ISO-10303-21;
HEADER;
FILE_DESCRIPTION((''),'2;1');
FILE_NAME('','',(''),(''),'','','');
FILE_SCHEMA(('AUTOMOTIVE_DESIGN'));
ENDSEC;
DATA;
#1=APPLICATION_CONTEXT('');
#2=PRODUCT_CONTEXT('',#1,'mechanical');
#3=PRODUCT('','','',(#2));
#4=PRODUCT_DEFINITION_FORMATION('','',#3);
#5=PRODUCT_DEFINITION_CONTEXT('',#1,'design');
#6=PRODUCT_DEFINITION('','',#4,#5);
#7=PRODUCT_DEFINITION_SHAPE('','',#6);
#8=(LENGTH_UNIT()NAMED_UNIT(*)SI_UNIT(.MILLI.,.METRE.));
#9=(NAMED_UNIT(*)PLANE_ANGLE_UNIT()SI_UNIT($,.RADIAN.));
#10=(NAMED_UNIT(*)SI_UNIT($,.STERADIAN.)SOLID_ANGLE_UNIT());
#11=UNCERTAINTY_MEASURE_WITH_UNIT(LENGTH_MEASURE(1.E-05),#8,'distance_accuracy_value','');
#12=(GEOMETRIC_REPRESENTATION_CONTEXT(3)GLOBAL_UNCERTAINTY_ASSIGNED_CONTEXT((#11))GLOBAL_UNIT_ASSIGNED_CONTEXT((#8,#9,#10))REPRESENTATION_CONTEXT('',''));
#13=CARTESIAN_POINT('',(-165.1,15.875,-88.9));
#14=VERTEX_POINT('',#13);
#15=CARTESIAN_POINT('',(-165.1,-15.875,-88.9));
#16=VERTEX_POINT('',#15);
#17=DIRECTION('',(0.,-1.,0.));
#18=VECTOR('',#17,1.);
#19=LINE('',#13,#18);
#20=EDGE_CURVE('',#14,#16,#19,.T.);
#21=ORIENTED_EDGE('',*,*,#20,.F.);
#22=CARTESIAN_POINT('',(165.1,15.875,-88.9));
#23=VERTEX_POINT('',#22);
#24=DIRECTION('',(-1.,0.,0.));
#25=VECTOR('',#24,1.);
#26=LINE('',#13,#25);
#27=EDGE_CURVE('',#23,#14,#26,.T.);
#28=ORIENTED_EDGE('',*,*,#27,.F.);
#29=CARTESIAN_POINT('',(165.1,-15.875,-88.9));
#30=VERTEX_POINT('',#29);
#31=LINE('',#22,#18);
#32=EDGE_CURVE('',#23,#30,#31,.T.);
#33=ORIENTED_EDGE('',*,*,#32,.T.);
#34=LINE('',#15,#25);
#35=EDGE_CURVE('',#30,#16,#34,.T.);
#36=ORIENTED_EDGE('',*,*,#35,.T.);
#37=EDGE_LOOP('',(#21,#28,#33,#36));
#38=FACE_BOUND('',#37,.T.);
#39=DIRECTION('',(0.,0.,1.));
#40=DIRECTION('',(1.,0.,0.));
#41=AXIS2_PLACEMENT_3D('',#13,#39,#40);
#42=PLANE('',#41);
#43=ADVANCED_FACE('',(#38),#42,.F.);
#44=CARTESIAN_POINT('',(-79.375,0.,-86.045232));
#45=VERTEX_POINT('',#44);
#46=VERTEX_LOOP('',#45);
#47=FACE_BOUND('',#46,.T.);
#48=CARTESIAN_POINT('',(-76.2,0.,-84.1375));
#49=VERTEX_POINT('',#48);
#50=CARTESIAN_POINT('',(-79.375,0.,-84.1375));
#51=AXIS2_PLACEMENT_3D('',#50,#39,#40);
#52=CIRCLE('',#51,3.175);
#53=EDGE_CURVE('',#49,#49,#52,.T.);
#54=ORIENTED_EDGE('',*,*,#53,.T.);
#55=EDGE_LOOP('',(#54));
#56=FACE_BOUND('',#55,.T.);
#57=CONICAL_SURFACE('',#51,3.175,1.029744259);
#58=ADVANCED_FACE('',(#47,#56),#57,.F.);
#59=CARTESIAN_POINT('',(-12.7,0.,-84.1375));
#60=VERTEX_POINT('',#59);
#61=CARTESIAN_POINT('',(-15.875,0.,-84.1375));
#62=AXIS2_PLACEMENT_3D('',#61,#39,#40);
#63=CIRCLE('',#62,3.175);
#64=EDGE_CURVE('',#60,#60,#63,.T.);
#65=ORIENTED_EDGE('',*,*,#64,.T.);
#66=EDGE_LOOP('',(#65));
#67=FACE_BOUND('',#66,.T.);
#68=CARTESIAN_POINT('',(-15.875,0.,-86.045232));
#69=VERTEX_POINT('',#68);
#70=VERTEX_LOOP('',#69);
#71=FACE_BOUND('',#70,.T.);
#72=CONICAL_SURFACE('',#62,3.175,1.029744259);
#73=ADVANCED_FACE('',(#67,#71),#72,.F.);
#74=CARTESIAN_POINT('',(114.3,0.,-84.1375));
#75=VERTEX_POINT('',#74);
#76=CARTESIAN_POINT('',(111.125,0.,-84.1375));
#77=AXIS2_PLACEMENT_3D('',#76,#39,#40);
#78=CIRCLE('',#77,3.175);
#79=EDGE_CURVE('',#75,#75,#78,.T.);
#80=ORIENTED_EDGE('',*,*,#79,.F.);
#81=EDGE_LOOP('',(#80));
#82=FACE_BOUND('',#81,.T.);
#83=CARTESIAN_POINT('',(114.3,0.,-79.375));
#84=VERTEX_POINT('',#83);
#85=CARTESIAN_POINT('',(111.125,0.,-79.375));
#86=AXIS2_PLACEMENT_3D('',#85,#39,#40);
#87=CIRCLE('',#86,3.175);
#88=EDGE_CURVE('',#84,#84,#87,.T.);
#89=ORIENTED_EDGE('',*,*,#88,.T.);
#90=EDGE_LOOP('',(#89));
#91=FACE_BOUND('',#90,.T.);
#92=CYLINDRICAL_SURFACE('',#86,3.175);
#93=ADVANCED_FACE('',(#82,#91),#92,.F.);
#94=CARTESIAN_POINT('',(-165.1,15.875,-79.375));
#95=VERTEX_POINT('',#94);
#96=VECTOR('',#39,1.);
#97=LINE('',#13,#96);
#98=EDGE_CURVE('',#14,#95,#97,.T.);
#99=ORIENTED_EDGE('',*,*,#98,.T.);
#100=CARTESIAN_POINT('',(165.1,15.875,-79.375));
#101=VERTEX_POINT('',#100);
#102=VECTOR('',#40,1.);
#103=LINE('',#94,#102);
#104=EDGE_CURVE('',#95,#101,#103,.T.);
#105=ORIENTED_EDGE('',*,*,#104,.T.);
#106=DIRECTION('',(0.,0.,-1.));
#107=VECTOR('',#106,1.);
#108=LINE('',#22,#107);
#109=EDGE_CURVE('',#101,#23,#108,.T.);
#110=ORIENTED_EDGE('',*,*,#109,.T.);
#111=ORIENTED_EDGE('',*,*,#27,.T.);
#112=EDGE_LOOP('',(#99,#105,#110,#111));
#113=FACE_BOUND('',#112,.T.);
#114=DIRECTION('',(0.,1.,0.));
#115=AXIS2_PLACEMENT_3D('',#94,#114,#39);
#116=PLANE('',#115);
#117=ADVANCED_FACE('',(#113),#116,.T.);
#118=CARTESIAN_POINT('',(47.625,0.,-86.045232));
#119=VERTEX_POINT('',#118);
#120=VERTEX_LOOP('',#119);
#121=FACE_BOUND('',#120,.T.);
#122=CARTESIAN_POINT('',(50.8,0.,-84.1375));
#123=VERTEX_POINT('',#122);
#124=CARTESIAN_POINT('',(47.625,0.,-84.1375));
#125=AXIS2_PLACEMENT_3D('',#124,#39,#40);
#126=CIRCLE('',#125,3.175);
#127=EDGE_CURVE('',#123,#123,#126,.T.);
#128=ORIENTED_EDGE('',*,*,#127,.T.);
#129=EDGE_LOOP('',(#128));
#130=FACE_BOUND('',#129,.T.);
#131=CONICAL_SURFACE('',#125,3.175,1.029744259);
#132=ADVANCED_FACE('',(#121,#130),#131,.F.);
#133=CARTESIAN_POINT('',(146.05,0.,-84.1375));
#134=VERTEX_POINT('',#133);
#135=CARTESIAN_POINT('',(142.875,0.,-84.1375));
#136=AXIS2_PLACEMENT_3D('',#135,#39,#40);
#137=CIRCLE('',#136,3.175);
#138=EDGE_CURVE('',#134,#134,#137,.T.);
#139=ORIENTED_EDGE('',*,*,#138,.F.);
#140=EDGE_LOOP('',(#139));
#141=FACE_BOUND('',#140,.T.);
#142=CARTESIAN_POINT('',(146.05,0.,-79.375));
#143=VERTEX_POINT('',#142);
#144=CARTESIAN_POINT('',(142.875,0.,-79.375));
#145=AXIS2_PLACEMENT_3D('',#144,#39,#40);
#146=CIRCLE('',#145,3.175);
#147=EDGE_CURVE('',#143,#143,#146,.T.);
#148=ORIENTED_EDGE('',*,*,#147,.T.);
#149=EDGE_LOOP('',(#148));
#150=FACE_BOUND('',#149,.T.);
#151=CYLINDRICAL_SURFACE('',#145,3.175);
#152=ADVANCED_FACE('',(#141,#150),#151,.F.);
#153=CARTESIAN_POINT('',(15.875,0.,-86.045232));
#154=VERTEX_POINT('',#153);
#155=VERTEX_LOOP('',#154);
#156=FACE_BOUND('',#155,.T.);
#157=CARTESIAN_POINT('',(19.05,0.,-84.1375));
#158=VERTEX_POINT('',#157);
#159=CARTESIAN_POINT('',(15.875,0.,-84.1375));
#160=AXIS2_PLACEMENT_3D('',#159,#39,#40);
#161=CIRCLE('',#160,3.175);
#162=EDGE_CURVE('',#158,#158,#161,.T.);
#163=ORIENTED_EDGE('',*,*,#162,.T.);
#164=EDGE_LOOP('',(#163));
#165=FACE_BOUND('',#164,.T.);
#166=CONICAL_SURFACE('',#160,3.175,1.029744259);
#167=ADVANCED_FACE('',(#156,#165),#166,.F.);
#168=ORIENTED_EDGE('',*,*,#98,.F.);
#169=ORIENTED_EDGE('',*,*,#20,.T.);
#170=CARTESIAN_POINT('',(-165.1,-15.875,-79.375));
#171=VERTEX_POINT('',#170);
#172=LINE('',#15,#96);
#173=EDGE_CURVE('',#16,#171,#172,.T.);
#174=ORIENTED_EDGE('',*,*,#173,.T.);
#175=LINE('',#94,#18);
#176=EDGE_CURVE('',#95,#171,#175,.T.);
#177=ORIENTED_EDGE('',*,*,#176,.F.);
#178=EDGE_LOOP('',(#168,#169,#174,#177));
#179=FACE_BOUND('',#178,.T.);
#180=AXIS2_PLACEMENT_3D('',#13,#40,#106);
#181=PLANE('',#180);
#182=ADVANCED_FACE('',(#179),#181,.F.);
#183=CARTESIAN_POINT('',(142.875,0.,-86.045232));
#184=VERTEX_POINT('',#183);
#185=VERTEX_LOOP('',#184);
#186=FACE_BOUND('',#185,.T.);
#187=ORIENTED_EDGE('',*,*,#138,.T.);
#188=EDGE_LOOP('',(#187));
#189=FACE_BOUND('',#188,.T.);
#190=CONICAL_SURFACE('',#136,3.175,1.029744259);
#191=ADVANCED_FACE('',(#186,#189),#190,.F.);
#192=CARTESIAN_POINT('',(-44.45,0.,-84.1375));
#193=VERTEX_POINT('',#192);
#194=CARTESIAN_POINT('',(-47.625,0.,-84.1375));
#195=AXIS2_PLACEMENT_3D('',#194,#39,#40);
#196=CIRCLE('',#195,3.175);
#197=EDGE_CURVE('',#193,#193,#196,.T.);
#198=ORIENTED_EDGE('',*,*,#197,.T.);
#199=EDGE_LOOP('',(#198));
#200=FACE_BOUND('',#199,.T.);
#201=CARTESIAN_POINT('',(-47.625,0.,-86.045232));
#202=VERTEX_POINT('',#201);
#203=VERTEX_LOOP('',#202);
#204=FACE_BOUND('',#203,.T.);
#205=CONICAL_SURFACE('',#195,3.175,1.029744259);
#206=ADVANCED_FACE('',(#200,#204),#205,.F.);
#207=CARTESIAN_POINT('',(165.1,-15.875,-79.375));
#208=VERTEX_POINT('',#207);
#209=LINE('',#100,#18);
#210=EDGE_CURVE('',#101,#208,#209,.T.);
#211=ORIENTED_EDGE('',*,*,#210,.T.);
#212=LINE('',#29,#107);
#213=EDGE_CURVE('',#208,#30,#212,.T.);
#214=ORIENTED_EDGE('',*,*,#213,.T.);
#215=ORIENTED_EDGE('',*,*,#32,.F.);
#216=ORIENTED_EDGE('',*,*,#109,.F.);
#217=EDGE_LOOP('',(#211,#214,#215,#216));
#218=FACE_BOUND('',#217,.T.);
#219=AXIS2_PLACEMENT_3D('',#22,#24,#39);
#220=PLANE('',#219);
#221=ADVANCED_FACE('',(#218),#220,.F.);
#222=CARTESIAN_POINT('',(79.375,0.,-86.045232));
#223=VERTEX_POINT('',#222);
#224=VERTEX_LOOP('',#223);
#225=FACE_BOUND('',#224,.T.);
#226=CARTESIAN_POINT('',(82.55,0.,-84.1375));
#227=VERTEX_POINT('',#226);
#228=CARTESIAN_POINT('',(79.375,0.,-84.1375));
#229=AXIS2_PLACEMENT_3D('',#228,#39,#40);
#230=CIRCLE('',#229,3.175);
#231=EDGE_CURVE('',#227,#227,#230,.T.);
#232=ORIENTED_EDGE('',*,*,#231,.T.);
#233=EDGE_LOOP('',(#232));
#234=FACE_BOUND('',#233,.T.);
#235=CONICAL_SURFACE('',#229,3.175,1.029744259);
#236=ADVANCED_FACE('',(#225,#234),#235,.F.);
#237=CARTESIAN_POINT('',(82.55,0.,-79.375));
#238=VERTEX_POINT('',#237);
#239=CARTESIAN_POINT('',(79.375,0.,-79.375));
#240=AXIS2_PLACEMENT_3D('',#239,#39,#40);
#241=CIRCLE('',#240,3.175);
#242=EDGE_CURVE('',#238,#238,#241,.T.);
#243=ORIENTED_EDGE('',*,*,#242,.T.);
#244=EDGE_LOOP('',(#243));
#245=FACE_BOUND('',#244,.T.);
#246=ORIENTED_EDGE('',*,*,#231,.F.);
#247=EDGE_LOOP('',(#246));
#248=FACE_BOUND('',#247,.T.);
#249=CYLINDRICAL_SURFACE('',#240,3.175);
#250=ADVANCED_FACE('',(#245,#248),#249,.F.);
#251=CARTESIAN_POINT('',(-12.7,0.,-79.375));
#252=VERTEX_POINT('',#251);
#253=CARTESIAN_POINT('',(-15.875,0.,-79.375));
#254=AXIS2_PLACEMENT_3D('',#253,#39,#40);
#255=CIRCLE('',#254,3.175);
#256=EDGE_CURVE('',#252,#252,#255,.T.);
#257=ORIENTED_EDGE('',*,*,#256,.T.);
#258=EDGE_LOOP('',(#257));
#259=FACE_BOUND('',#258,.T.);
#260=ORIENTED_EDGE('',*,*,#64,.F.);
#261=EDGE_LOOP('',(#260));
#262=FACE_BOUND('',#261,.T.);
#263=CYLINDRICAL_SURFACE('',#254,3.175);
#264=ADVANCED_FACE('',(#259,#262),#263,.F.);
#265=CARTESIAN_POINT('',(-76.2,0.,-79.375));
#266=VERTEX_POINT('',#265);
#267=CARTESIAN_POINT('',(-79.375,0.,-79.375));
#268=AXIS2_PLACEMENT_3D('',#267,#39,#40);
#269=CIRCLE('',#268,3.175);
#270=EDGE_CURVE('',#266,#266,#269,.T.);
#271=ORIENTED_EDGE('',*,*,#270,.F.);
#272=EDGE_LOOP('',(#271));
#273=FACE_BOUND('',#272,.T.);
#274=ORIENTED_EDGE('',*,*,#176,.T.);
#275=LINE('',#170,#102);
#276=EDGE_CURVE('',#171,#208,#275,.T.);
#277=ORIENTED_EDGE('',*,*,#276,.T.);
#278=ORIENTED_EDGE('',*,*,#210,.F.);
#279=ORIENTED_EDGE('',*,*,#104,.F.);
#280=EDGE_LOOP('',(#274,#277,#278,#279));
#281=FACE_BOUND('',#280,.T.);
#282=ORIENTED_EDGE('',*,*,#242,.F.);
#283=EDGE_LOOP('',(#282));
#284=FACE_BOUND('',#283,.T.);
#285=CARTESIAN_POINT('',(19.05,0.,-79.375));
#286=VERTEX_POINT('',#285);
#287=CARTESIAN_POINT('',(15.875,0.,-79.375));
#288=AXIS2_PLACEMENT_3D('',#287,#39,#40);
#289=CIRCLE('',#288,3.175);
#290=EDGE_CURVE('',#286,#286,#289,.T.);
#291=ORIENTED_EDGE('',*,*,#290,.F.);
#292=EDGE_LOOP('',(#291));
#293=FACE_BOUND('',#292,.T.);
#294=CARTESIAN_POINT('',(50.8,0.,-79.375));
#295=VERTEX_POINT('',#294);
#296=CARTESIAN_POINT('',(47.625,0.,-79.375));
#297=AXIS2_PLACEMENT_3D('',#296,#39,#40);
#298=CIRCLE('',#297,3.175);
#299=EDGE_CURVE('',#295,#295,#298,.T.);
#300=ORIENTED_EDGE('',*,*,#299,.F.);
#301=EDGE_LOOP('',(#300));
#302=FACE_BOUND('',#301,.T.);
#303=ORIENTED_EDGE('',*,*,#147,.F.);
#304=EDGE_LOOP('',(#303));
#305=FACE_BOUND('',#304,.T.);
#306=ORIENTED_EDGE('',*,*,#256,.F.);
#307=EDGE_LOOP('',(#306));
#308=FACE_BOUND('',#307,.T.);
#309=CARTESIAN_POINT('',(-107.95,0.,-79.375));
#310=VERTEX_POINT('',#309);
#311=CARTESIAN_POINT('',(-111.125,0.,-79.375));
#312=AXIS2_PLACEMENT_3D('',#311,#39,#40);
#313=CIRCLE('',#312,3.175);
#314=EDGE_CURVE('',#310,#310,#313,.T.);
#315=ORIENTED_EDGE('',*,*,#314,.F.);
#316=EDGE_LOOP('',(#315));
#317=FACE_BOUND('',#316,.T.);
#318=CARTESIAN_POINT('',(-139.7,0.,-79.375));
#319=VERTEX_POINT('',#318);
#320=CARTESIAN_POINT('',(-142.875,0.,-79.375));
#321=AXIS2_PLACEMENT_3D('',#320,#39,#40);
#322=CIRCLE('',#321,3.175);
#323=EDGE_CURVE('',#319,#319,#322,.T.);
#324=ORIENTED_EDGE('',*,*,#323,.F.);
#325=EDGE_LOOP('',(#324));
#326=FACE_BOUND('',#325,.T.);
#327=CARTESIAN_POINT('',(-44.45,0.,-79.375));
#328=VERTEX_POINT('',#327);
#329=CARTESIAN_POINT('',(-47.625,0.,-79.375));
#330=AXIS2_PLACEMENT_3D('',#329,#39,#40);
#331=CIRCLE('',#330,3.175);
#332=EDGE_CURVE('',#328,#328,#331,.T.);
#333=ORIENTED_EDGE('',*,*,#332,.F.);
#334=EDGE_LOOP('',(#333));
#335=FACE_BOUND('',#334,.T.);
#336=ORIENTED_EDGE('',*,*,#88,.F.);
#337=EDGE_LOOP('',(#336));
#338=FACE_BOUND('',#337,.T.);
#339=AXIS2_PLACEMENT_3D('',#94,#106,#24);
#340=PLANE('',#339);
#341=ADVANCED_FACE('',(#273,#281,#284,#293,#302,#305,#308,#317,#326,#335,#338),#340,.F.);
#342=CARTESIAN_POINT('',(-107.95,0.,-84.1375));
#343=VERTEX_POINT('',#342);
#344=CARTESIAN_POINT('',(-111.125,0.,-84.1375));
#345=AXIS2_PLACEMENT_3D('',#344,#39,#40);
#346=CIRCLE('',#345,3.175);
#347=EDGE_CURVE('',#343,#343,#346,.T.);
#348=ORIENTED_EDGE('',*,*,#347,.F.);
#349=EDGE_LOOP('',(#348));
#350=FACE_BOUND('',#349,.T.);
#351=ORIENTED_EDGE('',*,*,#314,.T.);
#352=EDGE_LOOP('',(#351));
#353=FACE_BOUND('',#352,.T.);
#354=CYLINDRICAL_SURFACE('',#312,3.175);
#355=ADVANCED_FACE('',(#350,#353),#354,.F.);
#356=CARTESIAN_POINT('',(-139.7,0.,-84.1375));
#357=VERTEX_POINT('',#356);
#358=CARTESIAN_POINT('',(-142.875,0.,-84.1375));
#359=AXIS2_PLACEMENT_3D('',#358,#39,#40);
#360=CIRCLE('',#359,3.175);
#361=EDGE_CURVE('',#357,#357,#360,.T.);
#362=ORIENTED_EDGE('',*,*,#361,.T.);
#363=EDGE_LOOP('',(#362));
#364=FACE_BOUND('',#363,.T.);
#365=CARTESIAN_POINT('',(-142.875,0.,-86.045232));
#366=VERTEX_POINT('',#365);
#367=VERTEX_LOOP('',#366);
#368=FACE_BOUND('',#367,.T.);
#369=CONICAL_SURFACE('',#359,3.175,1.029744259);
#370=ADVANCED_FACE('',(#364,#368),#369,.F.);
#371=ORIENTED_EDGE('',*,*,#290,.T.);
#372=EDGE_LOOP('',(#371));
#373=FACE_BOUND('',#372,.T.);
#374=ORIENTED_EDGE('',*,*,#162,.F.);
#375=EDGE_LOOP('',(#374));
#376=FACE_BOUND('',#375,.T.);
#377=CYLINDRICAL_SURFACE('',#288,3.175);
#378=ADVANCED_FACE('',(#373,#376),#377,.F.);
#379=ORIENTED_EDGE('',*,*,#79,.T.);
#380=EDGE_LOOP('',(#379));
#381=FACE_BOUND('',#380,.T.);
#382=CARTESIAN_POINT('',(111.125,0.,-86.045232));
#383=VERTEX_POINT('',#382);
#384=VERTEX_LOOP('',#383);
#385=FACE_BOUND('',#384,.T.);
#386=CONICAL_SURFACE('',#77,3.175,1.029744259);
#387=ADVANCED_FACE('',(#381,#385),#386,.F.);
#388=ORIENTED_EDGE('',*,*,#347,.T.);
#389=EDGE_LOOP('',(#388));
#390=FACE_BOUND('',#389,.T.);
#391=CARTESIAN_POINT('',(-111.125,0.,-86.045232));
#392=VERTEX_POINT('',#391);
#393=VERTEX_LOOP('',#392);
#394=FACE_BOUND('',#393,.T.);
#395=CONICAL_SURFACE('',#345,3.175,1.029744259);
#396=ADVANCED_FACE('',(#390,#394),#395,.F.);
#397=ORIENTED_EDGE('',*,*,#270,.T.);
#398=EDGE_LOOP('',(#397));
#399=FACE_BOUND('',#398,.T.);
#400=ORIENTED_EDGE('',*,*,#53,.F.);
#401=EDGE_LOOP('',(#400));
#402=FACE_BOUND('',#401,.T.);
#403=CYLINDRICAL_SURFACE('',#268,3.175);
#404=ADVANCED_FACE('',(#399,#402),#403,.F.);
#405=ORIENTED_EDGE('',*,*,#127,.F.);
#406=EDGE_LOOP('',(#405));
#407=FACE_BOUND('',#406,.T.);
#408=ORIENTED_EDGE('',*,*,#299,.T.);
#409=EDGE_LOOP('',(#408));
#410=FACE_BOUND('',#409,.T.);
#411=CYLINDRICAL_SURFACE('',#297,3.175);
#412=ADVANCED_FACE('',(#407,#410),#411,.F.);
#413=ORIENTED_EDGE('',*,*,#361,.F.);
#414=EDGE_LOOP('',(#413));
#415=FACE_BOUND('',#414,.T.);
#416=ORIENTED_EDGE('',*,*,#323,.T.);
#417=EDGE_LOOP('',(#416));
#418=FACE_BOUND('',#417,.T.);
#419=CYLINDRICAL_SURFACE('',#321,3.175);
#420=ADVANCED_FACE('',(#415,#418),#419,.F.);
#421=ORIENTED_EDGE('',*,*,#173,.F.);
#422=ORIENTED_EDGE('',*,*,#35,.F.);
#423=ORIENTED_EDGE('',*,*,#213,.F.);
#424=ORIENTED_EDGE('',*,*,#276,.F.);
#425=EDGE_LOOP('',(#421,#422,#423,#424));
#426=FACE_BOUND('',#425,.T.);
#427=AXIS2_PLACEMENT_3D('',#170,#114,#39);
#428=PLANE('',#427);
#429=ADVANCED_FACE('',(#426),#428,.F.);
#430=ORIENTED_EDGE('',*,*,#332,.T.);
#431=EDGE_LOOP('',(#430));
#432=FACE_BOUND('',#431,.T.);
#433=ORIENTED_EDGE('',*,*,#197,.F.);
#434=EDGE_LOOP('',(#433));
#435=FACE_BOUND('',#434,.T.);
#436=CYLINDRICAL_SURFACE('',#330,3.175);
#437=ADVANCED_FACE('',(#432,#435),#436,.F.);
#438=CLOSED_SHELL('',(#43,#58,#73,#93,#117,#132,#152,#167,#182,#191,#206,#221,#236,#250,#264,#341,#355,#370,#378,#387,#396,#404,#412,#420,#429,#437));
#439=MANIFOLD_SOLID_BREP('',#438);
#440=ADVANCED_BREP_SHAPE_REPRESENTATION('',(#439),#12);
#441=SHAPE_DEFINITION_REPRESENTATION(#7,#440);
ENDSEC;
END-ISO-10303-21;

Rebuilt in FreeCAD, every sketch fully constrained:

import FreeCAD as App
import Part
import Sketcher
from FreeCAD import Vector
Q = App.Units.Quantity

doc = App.newDocument("Part")
body = doc.addObject("PartDesign::Body", "Body")

# Sketch on XZ plane
sketch1 = body.newObject("Sketcher::SketchObject", "Sketch")
sketch1.AttachmentSupport = (doc.getObject("XZ_Plane"), [""])
sketch1.MapMode = "FlatFace"
sketch1.addGeometry([
    Part.LineSegment(Vector(-165.1, -88.9, 0), Vector(-165.1, -79.375, 0)),
    Part.LineSegment(Vector(-165.1, -79.375, 0), Vector(165.1, -79.375, 0)),
    Part.LineSegment(Vector(165.1, -79.375, 0), Vector(165.1, -88.9, 0)),
    Part.LineSegment(Vector(165.1, -88.9, 0), Vector(-165.1, -88.9, 0)),
], False)
sketch1.addConstraint([
    Sketcher.Constraint("Coincident", 0, 2, 1, 1),
    Sketcher.Constraint("Coincident", 1, 2, 2, 1),
    Sketcher.Constraint("Coincident", 2, 2, 3, 1),
    Sketcher.Constraint("Coincident", 3, 2, 0, 1),
    Sketcher.Constraint("Vertical", 0),
    Sketcher.Constraint("Horizontal", 1),
    Sketcher.Constraint("Vertical", 2),
    Sketcher.Constraint("Horizontal", 3),
    Sketcher.Constraint("DistanceX", 1, 1, 1, 2, Q("13 in")),
    Sketcher.Constraint("DistanceX", 0, 2, -1, 1, Q("6.5 in")),
    Sketcher.Constraint("DistanceY", 2, 2, -1, 1, Q("3.5 in")),
    Sketcher.Constraint("DistanceY", 0, 1, 0, 2, Q("0.375 in")),
])
pad1 = body.newObject("PartDesign::Pad", "Pad")
pad1.Profile = sketch1
pad1.Type = "TwoLengths"
pad1.Length = Q("0.625 in")
pad1.Length2 = Q("0.625 in")
pad1.Reversed = True

# Sketch on XY plane
sketch2 = body.newObject("Sketcher::SketchObject", "Sketch001")
sketch2.AttachmentSupport = (doc.getObject("XY_Plane"), [""])
sketch2.MapMode = "FlatFace"
sketch2.AttachmentOffset = App.Placement(Vector(0, 0, -3.125 * 25.4), App.Rotation())
sketch2.addGeometry([
    Part.Circle(Vector(-142.875, 0, 0), Vector(0, 0, 1), 3.175),  # 0
    Part.Circle(Vector(-111.125, 0, 0), Vector(0, 0, 1), 3.175),  # 1
    Part.Circle(Vector(-79.375, 0, 0), Vector(0, 0, 1), 3.175),  # 2
    Part.Circle(Vector(-47.625, 0, 0), Vector(0, 0, 1), 3.175),  # 3
    Part.Circle(Vector(-15.875, 0, 0), Vector(0, 0, 1), 3.175),  # 4
    Part.Circle(Vector(15.875, 0, 0), Vector(0, 0, 1), 3.175),  # 5
    Part.Circle(Vector(47.625, 0, 0), Vector(0, 0, 1), 3.175),  # 6
    Part.Circle(Vector(79.375, 0, 0), Vector(0, 0, 1), 3.175),  # 7
    Part.Circle(Vector(111.125, 0, 0), Vector(0, 0, 1), 3.175),  # 8
    Part.Circle(Vector(142.875, 0, 0), Vector(0, 0, 1), 3.175),  # 9
], False)
sketch2.addConstraint([
    Sketcher.Constraint("Equal", 0, 1),
    Sketcher.Constraint("Equal", 1, 2),
    Sketcher.Constraint("Equal", 2, 3),
    Sketcher.Constraint("Equal", 3, 4),
    Sketcher.Constraint("Equal", 4, 5),
    Sketcher.Constraint("Equal", 5, 6),
    Sketcher.Constraint("Equal", 6, 7),
    Sketcher.Constraint("Equal", 7, 8),
    Sketcher.Constraint("Equal", 8, 9),
    Sketcher.Constraint("Symmetric", 4, 3, 5, 3, -1, 1),
    Sketcher.Constraint("Symmetric", 3, 3, 6, 3, -1, 1),
    Sketcher.Constraint("Symmetric", 2, 3, 7, 3, -1, 1),
    Sketcher.Constraint("Symmetric", 1, 3, 8, 3, -1, 1),
    Sketcher.Constraint("Symmetric", 0, 3, 9, 3, -1, 1),
    Sketcher.Constraint("PointOnObject", 0, 3, -1),
    Sketcher.Constraint("PointOnObject", 1, 3, -1),
    Sketcher.Constraint("PointOnObject", 2, 3, -1),
    Sketcher.Constraint("PointOnObject", 3, 3, -1),
    Sketcher.Constraint("PointOnObject", 4, 3, -1),
    Sketcher.Constraint("Diameter", 0, Q("0.25 in")),
    Sketcher.Constraint("DistanceX", 0, 3, 4, 3, Q("5 in")),
    Sketcher.Constraint("DistanceX", 1, 3, 5, 3, Q("5 in")),
    Sketcher.Constraint("DistanceX", 2, 3, 6, 3, Q("5 in")),
    Sketcher.Constraint("DistanceX", 0, 3, 2, 3, Q("2.5 in")),
    Sketcher.Constraint("DistanceX", 0, 3, 1, 3, Q("1.25 in")),
])
doc.recompute()
hole = body.newObject("PartDesign::Hole", "Hole")
hole.Profile = sketch2
hole.ThreadType = "None"
hole.Diameter = Q("0.25 in")
hole.DepthType = "Dimension"
hole.Depth = Q("0.1875 in")
hole.DrillPoint = "Angled"
hole.DrillPointAngle = 118

doc.recompute()
